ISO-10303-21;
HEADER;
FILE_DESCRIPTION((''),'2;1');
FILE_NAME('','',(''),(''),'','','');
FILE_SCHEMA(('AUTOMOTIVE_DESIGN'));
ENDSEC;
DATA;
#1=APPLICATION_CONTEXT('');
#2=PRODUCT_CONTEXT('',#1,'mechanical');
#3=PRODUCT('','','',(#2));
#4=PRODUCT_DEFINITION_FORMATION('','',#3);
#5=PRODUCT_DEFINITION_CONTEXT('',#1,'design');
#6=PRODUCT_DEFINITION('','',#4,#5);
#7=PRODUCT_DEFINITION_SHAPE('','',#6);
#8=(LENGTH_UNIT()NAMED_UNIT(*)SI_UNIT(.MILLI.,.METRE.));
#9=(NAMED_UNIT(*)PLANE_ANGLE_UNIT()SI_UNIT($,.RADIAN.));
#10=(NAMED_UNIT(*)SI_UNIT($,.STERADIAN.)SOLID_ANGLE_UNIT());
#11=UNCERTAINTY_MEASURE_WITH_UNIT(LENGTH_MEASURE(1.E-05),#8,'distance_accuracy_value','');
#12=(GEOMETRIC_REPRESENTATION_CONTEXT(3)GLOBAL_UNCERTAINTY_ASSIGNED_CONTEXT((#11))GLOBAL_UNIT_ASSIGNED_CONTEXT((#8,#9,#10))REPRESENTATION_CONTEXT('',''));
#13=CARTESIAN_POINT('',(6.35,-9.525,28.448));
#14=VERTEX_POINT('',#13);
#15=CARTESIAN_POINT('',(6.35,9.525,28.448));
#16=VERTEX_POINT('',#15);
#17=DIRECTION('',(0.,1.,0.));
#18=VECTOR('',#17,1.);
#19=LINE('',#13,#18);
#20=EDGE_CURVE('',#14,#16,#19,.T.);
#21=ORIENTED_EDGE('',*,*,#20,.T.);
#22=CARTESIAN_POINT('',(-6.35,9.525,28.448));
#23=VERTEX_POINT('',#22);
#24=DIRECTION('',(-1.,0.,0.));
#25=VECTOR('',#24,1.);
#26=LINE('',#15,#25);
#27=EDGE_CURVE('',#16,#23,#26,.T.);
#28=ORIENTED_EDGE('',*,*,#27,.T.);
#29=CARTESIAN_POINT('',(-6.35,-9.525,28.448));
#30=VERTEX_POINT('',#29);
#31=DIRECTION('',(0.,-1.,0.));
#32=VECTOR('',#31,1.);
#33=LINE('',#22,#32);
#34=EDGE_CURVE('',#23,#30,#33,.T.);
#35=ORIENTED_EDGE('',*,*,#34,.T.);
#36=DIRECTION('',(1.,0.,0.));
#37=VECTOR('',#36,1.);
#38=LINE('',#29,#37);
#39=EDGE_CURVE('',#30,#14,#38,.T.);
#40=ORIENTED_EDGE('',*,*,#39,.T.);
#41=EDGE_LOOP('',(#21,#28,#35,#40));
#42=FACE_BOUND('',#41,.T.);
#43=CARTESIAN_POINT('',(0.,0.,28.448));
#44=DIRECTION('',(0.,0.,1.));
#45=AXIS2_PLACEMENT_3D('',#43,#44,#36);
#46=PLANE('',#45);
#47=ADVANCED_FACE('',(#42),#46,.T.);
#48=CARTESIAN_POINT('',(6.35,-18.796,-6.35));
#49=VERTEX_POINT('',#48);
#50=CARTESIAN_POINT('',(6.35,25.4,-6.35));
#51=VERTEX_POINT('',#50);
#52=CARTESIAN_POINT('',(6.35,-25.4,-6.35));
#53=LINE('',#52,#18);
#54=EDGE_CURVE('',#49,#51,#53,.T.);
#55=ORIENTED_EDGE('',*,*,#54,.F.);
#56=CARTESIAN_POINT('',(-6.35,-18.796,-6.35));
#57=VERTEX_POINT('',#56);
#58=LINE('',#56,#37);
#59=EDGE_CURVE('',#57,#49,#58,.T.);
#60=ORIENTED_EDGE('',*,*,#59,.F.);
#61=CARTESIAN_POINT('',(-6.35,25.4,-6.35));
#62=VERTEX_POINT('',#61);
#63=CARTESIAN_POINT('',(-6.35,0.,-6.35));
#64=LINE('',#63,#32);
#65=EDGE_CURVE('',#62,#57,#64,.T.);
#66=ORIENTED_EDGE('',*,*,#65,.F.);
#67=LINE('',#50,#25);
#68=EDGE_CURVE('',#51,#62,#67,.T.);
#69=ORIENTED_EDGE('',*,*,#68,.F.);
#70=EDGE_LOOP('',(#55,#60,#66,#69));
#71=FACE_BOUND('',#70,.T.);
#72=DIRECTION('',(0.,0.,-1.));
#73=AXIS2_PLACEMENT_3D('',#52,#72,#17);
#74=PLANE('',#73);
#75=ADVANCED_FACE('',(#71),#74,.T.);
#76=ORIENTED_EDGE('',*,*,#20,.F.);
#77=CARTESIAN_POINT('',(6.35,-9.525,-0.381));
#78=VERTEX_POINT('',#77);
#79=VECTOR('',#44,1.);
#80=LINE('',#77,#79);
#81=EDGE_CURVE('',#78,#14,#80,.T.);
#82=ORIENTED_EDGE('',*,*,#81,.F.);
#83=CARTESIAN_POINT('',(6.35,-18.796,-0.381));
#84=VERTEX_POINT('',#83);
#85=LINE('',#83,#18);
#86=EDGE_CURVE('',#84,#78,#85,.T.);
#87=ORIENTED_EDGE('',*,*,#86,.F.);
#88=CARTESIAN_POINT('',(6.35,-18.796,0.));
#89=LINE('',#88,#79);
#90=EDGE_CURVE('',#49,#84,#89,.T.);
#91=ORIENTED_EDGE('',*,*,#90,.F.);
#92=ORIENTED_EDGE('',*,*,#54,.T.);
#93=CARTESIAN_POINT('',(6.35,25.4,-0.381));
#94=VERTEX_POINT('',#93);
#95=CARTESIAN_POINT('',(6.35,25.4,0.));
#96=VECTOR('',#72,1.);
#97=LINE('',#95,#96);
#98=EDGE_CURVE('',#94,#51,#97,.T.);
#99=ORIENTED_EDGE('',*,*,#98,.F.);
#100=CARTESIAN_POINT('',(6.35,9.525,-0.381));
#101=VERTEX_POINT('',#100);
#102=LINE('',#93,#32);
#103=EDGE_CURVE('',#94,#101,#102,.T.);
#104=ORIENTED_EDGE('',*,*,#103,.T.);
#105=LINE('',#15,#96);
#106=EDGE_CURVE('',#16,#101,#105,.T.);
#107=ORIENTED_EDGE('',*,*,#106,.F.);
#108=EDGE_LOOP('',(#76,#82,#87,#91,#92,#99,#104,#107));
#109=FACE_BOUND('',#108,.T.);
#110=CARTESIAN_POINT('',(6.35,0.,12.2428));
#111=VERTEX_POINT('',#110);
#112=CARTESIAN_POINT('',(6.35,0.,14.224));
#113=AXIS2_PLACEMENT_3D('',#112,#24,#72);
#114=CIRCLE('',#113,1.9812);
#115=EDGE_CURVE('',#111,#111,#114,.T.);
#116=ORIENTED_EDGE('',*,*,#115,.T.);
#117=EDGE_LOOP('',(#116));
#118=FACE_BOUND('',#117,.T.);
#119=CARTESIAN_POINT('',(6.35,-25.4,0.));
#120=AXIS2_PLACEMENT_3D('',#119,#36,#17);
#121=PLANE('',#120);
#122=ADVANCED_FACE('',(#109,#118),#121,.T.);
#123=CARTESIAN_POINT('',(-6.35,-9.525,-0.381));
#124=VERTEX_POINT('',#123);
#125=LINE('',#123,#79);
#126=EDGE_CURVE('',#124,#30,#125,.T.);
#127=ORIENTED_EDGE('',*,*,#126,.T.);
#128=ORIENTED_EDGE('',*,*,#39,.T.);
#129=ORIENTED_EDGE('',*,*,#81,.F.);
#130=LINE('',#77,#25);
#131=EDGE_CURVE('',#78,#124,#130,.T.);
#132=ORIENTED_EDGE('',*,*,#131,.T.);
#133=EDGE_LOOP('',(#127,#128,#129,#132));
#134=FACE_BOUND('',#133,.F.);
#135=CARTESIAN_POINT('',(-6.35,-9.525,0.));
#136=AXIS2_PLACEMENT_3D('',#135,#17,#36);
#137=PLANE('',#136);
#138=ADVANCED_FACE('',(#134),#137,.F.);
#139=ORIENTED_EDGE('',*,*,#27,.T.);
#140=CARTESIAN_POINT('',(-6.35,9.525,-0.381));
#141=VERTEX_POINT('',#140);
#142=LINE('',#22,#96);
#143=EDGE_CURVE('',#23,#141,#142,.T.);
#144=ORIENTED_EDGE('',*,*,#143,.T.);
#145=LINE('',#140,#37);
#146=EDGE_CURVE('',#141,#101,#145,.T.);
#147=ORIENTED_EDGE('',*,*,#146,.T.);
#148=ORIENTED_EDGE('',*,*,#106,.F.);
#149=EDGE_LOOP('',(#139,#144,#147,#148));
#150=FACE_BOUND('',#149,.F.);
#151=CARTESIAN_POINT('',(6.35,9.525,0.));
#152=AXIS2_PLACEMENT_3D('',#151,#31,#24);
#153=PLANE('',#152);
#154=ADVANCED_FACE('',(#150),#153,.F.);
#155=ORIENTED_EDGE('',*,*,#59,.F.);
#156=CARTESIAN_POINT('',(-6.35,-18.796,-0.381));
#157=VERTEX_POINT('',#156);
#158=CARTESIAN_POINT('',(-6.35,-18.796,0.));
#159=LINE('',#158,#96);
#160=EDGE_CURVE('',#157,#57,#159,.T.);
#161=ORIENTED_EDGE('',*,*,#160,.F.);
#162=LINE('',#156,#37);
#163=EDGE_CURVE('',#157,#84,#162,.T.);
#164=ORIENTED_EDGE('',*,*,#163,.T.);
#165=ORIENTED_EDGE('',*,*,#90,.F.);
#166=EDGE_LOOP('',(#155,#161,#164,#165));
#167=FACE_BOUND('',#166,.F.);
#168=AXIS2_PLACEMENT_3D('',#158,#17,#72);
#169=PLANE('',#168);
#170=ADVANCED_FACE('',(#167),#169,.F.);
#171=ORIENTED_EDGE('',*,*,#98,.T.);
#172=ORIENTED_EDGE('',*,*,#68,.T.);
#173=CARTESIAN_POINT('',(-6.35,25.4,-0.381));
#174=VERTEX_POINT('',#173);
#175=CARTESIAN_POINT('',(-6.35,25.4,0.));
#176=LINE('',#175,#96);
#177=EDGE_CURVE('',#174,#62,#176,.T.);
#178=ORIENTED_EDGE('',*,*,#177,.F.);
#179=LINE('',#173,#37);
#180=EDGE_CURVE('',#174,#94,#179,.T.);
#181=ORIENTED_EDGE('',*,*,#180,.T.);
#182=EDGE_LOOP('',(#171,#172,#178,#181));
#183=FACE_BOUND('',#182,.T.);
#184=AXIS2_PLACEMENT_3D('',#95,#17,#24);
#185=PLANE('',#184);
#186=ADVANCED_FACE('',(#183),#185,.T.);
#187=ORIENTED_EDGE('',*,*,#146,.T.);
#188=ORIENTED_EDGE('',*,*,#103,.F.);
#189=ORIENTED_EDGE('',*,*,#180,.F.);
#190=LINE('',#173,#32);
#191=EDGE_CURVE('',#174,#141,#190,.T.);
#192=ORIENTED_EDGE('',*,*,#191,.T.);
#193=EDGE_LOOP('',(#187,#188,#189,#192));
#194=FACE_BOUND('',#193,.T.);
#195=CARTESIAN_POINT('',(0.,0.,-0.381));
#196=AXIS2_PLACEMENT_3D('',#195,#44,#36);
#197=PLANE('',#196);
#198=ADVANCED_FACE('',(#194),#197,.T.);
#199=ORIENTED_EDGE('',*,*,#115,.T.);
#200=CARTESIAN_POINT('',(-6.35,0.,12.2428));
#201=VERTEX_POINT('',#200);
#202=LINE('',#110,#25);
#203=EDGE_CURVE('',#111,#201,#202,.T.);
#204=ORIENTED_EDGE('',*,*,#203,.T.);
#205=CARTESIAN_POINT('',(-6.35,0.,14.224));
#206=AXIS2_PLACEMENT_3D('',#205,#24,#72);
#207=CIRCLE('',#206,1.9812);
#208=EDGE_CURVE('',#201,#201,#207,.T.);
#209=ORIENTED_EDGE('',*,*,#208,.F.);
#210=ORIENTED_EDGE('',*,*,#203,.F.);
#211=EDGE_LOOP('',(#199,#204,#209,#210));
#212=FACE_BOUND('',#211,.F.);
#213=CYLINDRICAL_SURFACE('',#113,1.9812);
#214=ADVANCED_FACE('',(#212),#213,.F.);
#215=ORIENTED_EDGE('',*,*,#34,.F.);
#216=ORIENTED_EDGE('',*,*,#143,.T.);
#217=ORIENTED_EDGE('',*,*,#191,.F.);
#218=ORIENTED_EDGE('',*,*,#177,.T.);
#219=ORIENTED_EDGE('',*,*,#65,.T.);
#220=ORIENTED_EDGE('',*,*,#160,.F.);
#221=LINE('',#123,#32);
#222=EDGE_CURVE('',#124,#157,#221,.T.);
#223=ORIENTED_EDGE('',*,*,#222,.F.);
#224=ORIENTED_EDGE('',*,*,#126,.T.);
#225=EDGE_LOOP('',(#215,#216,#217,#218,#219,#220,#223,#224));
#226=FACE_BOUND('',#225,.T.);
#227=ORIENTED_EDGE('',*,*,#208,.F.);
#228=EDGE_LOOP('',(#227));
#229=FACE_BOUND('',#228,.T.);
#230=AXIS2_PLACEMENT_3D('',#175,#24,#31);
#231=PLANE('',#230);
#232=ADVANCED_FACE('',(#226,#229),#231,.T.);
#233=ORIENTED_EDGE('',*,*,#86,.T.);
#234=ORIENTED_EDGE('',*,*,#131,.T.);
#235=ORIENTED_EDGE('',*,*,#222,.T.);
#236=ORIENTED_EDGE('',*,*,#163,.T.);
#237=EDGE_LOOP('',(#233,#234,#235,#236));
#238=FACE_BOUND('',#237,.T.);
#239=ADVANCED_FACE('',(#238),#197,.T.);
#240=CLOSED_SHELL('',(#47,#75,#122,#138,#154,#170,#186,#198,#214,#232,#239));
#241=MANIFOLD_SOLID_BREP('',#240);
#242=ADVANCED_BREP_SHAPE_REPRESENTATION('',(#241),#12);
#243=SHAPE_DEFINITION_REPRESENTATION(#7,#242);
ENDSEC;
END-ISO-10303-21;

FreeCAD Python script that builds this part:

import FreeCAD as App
import Part
import Sketcher

V = App.Vector
Q = App.Units.Quantity


def add_polygon(sketch, points):
    """Adds a closed chain of lines whose ends are joined by coincident constraints."""
    first, n = sketch.GeometryCount, len(points)
    for a, b in zip(points, points[1:] + points[:1]):
        sketch.addGeometry(Part.LineSegment(App.Vector(*a, 0), App.Vector(*b, 0)), False)
    for i in range(n):
        sketch.addConstraint(Sketcher.Constraint("Coincident", first + i, 2, first + (i + 1) % n, 1))

doc = App.newDocument("Part")
body = doc.addObject("PartDesign::Body", "Body")

sketch1 = body.newObject("Sketcher::SketchObject", "Sketch")
sketch1.AttachmentSupport = (doc.getObject("XY_Plane"), [""])
sketch1.MapMode = "FlatFace"
add_polygon(sketch1, [(-6.35, 25.4), (-6.35, -25.4), (6.35, -25.4), (6.35, 25.4)])
sketch1.addConstraint([
    Sketcher.Constraint("Vertical", 0),
    Sketcher.Constraint("Horizontal", 1),
    Sketcher.Constraint("Vertical", 2),
    Sketcher.Constraint("Horizontal", 3),
    Sketcher.Constraint("Symmetric", 0, 2, 2, 2, -1, 1),
    Sketcher.Constraint("DistanceY", 0, 2, 0, 1, Q("2 in")),
    Sketcher.Constraint("DistanceX", 1, 1, 1, 2, Q("0.5 in")),
])
pad1 = body.newObject("PartDesign::Pad", "Pad")
pad1.Profile = sketch1
pad1.Length = Q("0.5 in")
pad1.Reversed = True

sketch2 = body.newObject("Sketcher::SketchObject", "Sketch001")
sketch2.AttachmentSupport = (doc.getObject("XY_Plane"), [""])
sketch2.MapMode = "FlatFace"
add_polygon(sketch2, [(-6.35, 9.525), (-6.35, -9.525), (6.35, -9.525), (6.35, 9.525)])
sketch2.addConstraint([
    Sketcher.Constraint("Vertical", 0),
    Sketcher.Constraint("Horizontal", 1),
    Sketcher.Constraint("Vertical", 2),
    Sketcher.Constraint("Horizontal", 3),
    Sketcher.Constraint("Symmetric", 0, 2, 2, 2, -1, 1),
    Sketcher.Constraint("DistanceX", 1, 1, 1, 2, Q("0.5 in")),
    Sketcher.Constraint("DistanceY", 0, 2, 0, 1, Q("0.75 in")),
])
pad2 = body.newObject("PartDesign::Pad", "Pad001")
pad2.Profile = sketch2
pad2.Length = Q("1.12 in")

sketch3 = body.newObject("Sketcher::SketchObject", "Sketch002")
sketch3.AttachmentSupport = (doc.getObject("YZ_Plane"), [""])
sketch3.MapMode = "FlatFace"
sketch3.AttachmentOffset = App.Placement(V(0, 0, 0.25 * 25.4), App.Rotation())
sketch3.addGeometry(Part.Circle(V(0, 14.224, 0), V(0, 0, 1), 1.9812), False)
sketch3.addConstraint([
    Sketcher.Constraint("PointOnObject", 0, 3, -2),
    Sketcher.Constraint("Diameter", 0, Q("0.156 in")),
    Sketcher.Constraint("DistanceY", -1, 1, 0, 3, Q("0.56 in")),
])
doc.recompute()
hole = body.newObject("PartDesign::Hole", "Hole")
hole.Profile = sketch3
hole.ThreadType = "None"
hole.Diameter = Q("0.156 in")
hole.DepthType = "ThroughAll"

sketch4 = body.newObject("Sketcher::SketchObject", "Sketch003")
sketch4.AttachmentSupport = (doc.getObject("YZ_Plane"), [""])
sketch4.MapMode = "FlatFace"
sketch4.AttachmentOffset = App.Placement(V(0, 0, 0.25 * 25.4), App.Rotation())
add_polygon(sketch4, [(25.4, -12.7), (25.4, -6.35), (-25.4, -6.35), (-25.4, -12.7)])
sketch4.addConstraint([
    Sketcher.Constraint("Vertical", 0),
    Sketcher.Constraint("Horizontal", 1),
    Sketcher.Constraint("Vertical", 2),
    Sketcher.Constraint("Horizontal", 3),
    Sketcher.Constraint("DistanceY", 0, 1, 0, 2, Q("0.25 in")),
    Sketcher.Constraint("DistanceX", 1, 2, 1, 1, Q("2 in")),
    Sketcher.Constraint("DistanceY", 0, 2, -1, 1, Q("0.25 in")),
    Sketcher.Constraint("DistanceX", -1, 1, 0, 2, Q("1 in")),
])
pocket1 = body.newObject("PartDesign::Pocket", "Pocket")
pocket1.Profile = sketch4
pocket1.Type = "ThroughAll"

sketch5 = body.newObject("Sketcher::SketchObject", "Sketch004")
sketch5.AttachmentSupport = (doc.getObject("YZ_Plane"), [""])
sketch5.MapMode = "FlatFace"
sketch5.AttachmentOffset = App.Placement(V(0, 0, -0.25 * 25.4), App.Rotation())
add_polygon(sketch5, [(-25.4, -6.35), (-25.4, 0), (-18.796, 0), (-18.796, -6.35)])
sketch5.addConstraint([
    Sketcher.Constraint("Vertical", 0),
    Sketcher.Constraint("Horizontal", 1),
    Sketcher.Constraint("Vertical", 2),
    Sketcher.Constraint("Horizontal", 3),
    Sketcher.Constraint("PointOnObject", 0, 2, -1),
    Sketcher.Constraint("DistanceX", 1, 1, 1, 2, Q("0.26 in")),
    Sketcher.Constraint("DistanceX", 0, 2, -1, 1, Q("1 in")),
    Sketcher.Constraint("DistanceY", 0, 1, 0, 2, Q("0.25 in")),
])
pocket2 = body.newObject("PartDesign::Pocket", "Pocket001")
pocket2.Profile = sketch5
pocket2.Type = "ThroughAll"
pocket2.Reversed = True

sketch6 = body.newObject("Sketcher::SketchObject", "Sketch005")
sketch6.AttachmentSupport = (doc.getObject("XY_Plane"), [""])
sketch6.MapMode = "FlatFace"
add_polygon(sketch6, [(6.35, 25.4), (-6.35, 25.4), (-6.35, 9.525), (6.35, 9.525)])
sketch6.addConstraint([
    Sketcher.Constraint("Horizontal", 0),
    Sketcher.Constraint("Vertical", 1),
    Sketcher.Constraint("Horizontal", 2),
    Sketcher.Constraint("Vertical", 3),
    Sketcher.Constraint("DistanceX", 0, 2, 0, 1, Q("0.5 in")),
    Sketcher.Constraint("DistanceY", -1, 1, 0, 2, Q("1 in")),
    Sketcher.Constraint("DistanceY", 1, 2, 1, 1, Q("0.625 in")),
    Sketcher.Constraint("DistanceX", 0, 2, -1, 1, Q("0.25 in")),
])
pocket3 = body.newObject("PartDesign::Pocket", "Pocket002")
pocket3.Profile = sketch6
pocket3.Length = Q("0.015 in")

sketch7 = body.newObject("Sketcher::SketchObject", "Sketch006")
sketch7.AttachmentSupport = (doc.getObject("XY_Plane"), [""])
sketch7.MapMode = "FlatFace"
add_polygon(sketch7, [(-6.35, -9.525), (-6.35, -18.796), (6.35, -18.796), (6.35, -9.525)])
sketch7.addConstraint([
    Sketcher.Constraint("Vertical", 0),
    Sketcher.Constraint("Horizontal", 1),
    Sketcher.Constraint("Vertical", 2),
    Sketcher.Constraint("Horizontal", 3),
    Sketcher.Constraint("DistanceX", 1, 1, 1, 2, Q("0.5 in")),
    Sketcher.Constraint("DistanceY", 0, 2, 0, 1, Q("0.365 in")),
    Sketcher.Constraint("DistanceX", 0, 2, -1, 1, Q("0.25 in")),
    Sketcher.Constraint("DistanceY", 0, 2, -1, 1, Q("0.74 in")),
])
pocket4 = body.newObject("PartDesign::Pocket", "Pocket003")
pocket4.Profile = sketch7
pocket4.Length = Q("0.015 in")

doc.recompute()
